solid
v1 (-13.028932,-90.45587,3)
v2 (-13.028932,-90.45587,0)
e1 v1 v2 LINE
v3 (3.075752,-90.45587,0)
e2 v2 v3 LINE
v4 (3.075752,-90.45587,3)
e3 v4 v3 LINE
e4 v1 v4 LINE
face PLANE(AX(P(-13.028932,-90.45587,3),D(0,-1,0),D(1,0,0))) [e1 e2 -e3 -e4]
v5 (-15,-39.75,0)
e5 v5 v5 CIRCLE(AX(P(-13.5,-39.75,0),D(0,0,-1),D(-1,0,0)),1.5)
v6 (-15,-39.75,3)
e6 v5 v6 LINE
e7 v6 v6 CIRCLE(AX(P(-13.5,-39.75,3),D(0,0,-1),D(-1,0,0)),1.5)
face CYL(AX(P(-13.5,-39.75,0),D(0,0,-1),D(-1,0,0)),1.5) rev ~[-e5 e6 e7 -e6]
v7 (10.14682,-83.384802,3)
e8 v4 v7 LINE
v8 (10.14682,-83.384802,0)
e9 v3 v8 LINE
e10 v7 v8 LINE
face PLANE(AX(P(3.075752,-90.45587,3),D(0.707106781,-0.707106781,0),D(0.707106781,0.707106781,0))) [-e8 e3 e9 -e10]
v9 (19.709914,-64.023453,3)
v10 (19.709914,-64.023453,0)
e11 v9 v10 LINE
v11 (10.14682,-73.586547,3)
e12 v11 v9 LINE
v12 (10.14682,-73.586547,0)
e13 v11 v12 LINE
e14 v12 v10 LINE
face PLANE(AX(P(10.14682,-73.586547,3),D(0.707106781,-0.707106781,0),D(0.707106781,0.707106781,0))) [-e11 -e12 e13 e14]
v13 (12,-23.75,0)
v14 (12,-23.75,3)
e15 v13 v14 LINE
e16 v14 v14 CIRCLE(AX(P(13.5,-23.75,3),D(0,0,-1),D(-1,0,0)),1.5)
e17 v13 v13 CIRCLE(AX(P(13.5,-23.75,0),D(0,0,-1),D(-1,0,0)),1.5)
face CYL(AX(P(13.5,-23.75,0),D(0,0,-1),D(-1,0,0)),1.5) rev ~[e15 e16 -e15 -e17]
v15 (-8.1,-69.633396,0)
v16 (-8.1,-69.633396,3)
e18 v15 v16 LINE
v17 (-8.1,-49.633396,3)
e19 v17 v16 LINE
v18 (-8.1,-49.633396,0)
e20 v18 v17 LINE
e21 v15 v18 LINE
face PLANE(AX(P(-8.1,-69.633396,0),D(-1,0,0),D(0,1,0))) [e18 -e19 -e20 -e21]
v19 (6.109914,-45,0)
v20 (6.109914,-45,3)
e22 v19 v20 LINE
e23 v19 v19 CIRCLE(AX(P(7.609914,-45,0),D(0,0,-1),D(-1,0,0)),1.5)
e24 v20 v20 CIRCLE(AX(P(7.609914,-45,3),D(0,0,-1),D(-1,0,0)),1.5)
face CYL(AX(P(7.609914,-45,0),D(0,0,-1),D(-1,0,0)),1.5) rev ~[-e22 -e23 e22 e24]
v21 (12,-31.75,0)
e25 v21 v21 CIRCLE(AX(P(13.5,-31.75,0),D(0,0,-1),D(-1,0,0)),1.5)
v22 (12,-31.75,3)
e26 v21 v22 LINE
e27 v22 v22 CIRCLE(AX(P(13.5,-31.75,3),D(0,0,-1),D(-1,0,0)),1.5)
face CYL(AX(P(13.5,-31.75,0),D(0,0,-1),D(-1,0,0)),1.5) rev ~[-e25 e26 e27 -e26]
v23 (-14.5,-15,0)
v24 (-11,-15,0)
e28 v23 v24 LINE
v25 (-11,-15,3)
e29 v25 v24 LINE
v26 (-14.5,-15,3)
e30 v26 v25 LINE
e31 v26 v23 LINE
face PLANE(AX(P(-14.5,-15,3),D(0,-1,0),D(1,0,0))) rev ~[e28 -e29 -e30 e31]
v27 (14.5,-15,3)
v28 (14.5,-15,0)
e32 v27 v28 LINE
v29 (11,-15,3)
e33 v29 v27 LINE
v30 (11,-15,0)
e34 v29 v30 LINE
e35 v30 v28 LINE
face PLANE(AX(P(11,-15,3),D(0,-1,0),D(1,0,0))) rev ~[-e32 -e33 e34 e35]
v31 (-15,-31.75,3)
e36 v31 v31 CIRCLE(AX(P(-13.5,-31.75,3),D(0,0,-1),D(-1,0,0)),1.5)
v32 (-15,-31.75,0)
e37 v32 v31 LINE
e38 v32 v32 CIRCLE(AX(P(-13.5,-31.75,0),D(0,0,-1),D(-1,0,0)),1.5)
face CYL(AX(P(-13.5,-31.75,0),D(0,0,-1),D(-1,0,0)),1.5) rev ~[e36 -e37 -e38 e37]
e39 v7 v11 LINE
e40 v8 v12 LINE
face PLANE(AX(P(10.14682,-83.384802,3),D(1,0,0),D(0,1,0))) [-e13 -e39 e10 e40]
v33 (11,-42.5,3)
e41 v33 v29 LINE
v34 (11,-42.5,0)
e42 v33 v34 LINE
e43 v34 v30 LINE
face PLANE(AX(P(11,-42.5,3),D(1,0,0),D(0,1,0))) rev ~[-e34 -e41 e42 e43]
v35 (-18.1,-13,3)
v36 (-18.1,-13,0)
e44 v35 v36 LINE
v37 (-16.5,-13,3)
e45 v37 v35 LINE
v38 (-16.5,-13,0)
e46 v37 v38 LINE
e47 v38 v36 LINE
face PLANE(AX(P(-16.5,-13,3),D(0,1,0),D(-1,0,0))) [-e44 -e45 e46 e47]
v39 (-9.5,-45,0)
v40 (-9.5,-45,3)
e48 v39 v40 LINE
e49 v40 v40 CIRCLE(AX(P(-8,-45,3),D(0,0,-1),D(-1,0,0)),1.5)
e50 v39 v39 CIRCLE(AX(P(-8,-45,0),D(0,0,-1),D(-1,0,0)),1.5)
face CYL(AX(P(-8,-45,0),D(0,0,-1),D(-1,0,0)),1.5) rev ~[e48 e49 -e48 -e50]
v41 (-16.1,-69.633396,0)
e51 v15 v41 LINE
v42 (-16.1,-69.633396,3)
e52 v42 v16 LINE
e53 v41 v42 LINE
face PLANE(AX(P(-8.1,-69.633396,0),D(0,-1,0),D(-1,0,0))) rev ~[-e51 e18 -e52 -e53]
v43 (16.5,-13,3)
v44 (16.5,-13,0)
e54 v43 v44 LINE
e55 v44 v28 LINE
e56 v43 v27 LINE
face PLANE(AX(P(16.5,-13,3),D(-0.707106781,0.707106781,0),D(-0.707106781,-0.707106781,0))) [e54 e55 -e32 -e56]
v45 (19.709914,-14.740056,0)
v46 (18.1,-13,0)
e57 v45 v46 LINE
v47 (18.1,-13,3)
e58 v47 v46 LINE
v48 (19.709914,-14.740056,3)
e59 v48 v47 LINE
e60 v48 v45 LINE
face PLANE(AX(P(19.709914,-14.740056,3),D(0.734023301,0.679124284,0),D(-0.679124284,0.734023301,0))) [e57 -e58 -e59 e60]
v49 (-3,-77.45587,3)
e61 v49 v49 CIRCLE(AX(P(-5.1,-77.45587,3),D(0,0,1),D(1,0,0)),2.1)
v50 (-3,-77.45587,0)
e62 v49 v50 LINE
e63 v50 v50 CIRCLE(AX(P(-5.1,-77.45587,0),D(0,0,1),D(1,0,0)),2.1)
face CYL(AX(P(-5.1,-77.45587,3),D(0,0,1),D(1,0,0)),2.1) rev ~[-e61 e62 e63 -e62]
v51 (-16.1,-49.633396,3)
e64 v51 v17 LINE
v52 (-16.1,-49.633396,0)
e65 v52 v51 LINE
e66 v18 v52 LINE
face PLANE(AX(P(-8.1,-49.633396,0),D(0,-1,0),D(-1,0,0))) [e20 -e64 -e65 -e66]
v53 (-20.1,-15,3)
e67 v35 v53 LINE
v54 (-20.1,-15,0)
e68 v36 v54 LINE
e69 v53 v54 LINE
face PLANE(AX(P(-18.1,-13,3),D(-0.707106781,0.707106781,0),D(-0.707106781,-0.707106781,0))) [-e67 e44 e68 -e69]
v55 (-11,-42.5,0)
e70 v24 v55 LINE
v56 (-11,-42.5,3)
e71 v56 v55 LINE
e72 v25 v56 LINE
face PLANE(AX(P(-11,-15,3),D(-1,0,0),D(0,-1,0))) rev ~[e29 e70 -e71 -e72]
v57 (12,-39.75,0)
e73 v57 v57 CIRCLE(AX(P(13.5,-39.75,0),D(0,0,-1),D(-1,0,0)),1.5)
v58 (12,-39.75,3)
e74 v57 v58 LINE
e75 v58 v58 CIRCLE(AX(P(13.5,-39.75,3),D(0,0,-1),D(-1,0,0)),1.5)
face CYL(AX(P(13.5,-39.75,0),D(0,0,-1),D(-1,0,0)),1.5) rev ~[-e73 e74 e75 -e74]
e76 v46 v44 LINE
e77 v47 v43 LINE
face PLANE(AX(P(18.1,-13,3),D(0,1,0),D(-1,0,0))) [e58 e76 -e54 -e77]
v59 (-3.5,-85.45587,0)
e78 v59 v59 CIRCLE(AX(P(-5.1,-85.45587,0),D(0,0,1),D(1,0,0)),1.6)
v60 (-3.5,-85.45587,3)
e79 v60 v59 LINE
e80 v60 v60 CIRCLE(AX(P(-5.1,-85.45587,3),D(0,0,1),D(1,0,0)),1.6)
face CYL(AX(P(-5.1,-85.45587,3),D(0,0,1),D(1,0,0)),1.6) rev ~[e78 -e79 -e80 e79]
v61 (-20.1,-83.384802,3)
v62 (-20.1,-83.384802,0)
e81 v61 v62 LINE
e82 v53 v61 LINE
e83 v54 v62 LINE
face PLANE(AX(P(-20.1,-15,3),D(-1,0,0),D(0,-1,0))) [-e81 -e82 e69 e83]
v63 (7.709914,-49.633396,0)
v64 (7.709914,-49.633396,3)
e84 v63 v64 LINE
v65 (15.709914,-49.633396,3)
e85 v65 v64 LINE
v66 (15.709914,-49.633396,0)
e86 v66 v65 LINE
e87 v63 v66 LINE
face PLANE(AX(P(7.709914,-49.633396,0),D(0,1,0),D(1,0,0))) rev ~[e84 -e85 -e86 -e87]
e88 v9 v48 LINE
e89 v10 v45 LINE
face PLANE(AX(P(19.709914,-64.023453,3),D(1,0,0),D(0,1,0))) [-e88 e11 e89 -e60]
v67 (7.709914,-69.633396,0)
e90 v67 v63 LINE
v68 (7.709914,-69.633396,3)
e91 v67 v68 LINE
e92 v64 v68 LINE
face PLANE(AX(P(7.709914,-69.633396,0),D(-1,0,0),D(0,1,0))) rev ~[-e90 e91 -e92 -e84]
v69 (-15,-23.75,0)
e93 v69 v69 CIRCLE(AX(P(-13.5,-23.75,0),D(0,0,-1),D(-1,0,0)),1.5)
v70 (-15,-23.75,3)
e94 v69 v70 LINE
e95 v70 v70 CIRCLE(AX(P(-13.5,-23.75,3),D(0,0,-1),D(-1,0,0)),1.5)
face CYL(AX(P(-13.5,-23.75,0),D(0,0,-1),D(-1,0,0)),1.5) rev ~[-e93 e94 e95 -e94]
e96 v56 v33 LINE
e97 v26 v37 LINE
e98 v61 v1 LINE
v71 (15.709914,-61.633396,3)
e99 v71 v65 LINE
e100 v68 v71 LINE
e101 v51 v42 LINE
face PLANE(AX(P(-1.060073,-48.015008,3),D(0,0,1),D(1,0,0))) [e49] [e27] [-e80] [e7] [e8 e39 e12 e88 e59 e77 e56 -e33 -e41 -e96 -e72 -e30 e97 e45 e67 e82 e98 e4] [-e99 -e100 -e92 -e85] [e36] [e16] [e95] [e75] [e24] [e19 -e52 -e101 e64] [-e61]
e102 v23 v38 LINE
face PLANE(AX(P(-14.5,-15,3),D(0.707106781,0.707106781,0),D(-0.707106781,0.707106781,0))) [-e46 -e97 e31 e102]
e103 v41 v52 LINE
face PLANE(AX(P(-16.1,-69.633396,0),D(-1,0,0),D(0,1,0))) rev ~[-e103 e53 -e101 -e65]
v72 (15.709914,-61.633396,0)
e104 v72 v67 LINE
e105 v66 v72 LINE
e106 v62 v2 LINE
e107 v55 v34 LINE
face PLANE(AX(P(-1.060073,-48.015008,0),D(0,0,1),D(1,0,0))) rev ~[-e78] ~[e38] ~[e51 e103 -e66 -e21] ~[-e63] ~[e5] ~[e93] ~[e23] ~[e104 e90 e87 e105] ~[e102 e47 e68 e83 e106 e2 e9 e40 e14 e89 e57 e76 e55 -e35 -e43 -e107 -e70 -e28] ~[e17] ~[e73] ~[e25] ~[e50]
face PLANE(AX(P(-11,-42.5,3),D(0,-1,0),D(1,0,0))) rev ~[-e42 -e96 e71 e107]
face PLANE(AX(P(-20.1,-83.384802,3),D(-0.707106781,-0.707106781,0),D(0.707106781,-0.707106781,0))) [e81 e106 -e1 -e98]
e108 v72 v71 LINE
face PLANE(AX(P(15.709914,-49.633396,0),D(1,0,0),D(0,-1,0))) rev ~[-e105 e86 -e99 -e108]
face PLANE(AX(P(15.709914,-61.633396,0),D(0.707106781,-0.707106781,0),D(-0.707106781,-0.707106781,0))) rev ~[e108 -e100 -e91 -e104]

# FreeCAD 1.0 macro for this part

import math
import FreeCAD as App
import Part
import Sketcher

V = App.Vector
Q = App.Units.Quantity


def add_polygon(sketch, points):
    """Adds a closed chain of lines whose ends are joined by coincident constraints."""
    first, n = sketch.GeometryCount, len(points)
    for a, b in zip(points, points[1:] + points[:1]):
        sketch.addGeometry(Part.LineSegment(App.Vector(*a, 0), App.Vector(*b, 0)), False)
    for i in range(n):
        sketch.addConstraint(Sketcher.Constraint("Coincident", first + i, 2, first + (i + 1) % n, 1))

doc = App.newDocument("Part")
body = doc.addObject("PartDesign::Body", "Body")

sketch1 = body.newObject("Sketcher::SketchObject", "Sketch")
sketch1.AttachmentSupport = (doc.getObject("XY_Plane"), [""])
sketch1.MapMode = "FlatFace"
sketch1.AttachmentOffset = App.Placement(V(0, 0, 3), App.Rotation())
sketch1.addGeometry([
    Part.LineSegment(V(-20.1, -15, 0), V(-20.1, -83.4, 0)),
    Part.LineSegment(V(-20.1, -83.4, 0), V(-13, -90.5, 0)),
    Part.LineSegment(V(-13, -90.5, 0), V(3.1, -90.5, 0)),
    Part.LineSegment(V(3.1, -90.5, 0), V(10.1, -83.4, 0)),
    Part.LineSegment(V(10.1, -83.4, 0), V(10.1, -73.6, 0)),
    Part.LineSegment(V(10.1, -73.6, 0), V(19.7, -64, 0)),
    Part.LineSegment(V(19.7, -64, 0), V(19.7, -14.7, 0)),
    Part.LineSegment(V(19.7, -14.7, 0), V(18.1, -13, 0)),
    Part.LineSegment(V(18.1, -13, 0), V(16.5, -13, 0)),
    Part.LineSegment(V(16.5, -13, 0), V(14.5, -15, 0)),
    Part.LineSegment(V(14.5, -15, 0), V(14.5, -41.5, 0)),
    Part.ArcOfCircle(Part.Circle(V(13.5, -41.5, 0), V(0, 0, 1), 1), math.radians(-90), math.radians(0)),
    Part.LineSegment(V(13.5, -42.5, 0), V(-13.5, -42.5, 0)),
    Part.ArcOfCircle(Part.Circle(V(-13.5, -41.5, 0), V(0, 0, 1), 1), math.radians(-180), math.radians(-90)),
    Part.LineSegment(V(-14.5, -41.5, 0), V(-14.5, -15, 0)),
    Part.LineSegment(V(-14.5, -15, 0), V(-16.5, -13, 0)),
    Part.LineSegment(V(-16.5, -13, 0), V(-18.1, -13, 0)),
    Part.LineSegment(V(-18.1, -13, 0), V(-20.1, -15, 0)),
    Part.Circle(V(-5.1, -85.5, 0), V(0, 0, 1), 1.6),
    Part.Circle(V(-5.1, -77.5, 0), V(0, 0, 1), 2.1),
], False)
sketch1.addConstraint([
    Sketcher.Constraint("Coincident", 0, 2, 1, 1),
    Sketcher.Constraint("Coincident", 1, 2, 2, 1),
    Sketcher.Constraint("Coincident", 2, 2, 3, 1),
    Sketcher.Constraint("Coincident", 3, 2, 4, 1),
    Sketcher.Constraint("Coincident", 4, 2, 5, 1),
    Sketcher.Constraint("Coincident", 5, 2, 6, 1),
    Sketcher.Constraint("Coincident", 6, 2, 7, 1),
    Sketcher.Constraint("Coincident", 7, 2, 8, 1),
    Sketcher.Constraint("Coincident", 8, 2, 9, 1),
    Sketcher.Constraint("Coincident", 9, 2, 10, 1),
    Sketcher.Constraint("Tangent", 10, 2, 11, 2),
    Sketcher.Constraint("Tangent", 11, 1, 12, 1),
    Sketcher.Constraint("Tangent", 12, 2, 13, 2),
    Sketcher.Constraint("Tangent", 13, 1, 14, 1),
    Sketcher.Constraint("Coincident", 14, 2, 15, 1),
    Sketcher.Constraint("Coincident", 15, 2, 16, 1),
    Sketcher.Constraint("Coincident", 16, 2, 17, 1),
    Sketcher.Constraint("Coincident", 17, 2, 0, 1),
    Sketcher.Constraint("Vertical", 0),
    Sketcher.Constraint("Horizontal", 2),
    Sketcher.Constraint("Vertical", 4),
    Sketcher.Constraint("Vertical", 6),
    Sketcher.Constraint("Horizontal", 8),
    Sketcher.Constraint("Vertical", 10),
    Sketcher.Constraint("Horizontal", 12),
    Sketcher.Constraint("Vertical", 14),
    Sketcher.Constraint("Horizontal", 16),
    Sketcher.Constraint("Equal", 11, 13),
    Sketcher.Constraint("Symmetric", 9, 2, 14, 2, -2),
    Sketcher.Constraint("Symmetric", 8, 2, 15, 2, -2),
    Sketcher.Constraint("Perpendicular", 1, 3),
    Sketcher.Constraint("Parallel", 3, 5),
    Sketcher.Constraint("Parallel", 5, 9),
    Sketcher.Constraint("Perpendicular", 9, 15),
    Sketcher.Constraint("Perpendicular", 15, 17),
    Sketcher.Constraint("Horizontal", 0, 2, 3, 2),
    Sketcher.Constraint("Horizontal", 14, 2, 17, 2),
    Sketcher.Constraint("Vertical", 18, 3, 19, 3),
    Sketcher.Constraint("Equal", 8, 16),
    Sketcher.Constraint("Radius", 11, Q("1 mm")),
    Sketcher.Constraint("Diameter", 18, Q("3.2 mm")),
    Sketcher.Constraint("Diameter", 19, Q("4.2 mm")),
    Sketcher.Constraint("DistanceX", 12, 2, 12, 1, Q("27 mm")),
    Sketcher.Constraint("Distance", 1, Q("10 mm")),
    Sketcher.Constraint("DistanceX", 8, 2, 8, 1, Q("1.6 mm")),
    Sketcher.Constraint("DistanceY", 10, 2, 10, 1, Q("26.5 mm")),
    Sketcher.Constraint("DistanceY", 7, 2, -1, 1, Q("13 mm")),
    Sketcher.Constraint("DistanceY", 9, 2, -1, 1, Q("15 mm")),
    Sketcher.Constraint("DistanceY", 18, 3, 19, 3, Q("8 mm")),
    Sketcher.Constraint("DistanceX", 0, 2, 18, 3, Q("15 mm")),
    Sketcher.Constraint("DistanceY", 1, 2, 18, 3, Q("5 mm")),
    Sketcher.Constraint("DistanceY", 0, 2, 0, 1, Q("68.384802 mm")),
    Sketcher.Constraint("DistanceX", 2, 1, 2, 2, Q("16.104684 mm")),
    Sketcher.Constraint("DistanceY", 4, 1, 4, 2, Q("9.798255 mm")),
    Sketcher.Constraint("DistanceY", 6, 1, 6, 2, Q("49.283397 mm")),
    Sketcher.Constraint("DistanceY", 3, 2, 5, 2, Q("19.361349 mm")),
])
pad1 = body.newObject("PartDesign::Pad", "Pad")
pad1.Profile = sketch1
pad1.Length = 3
pad1.Reversed = True

sketch2 = body.newObject("Sketcher::SketchObject", "Sketch001")
sketch2.AttachmentSupport = (doc.getObject("XY_Plane"), [""])
sketch2.MapMode = "FlatFace"
sketch2.AttachmentOffset = App.Placement(V(0, 0, 3), App.Rotation())
add_polygon(sketch2, [(-14.5, -15), (-16.5, -13), (-16.5, -43.1), (16.5, -43.1), (16.5, -13), (14.5, -15), (11, -15), (11, -42.5), (-11, -42.5), (-11, -15)])
sketch2.addConstraint([
    Sketcher.Constraint("Vertical", 1),
    Sketcher.Constraint("Horizontal", 2),
    Sketcher.Constraint("Vertical", 3),
    Sketcher.Constraint("Horizontal", 5),
    Sketcher.Constraint("Vertical", 6),
    Sketcher.Constraint("Horizontal", 7),
    Sketcher.Constraint("Vertical", 8),
    Sketcher.Constraint("Horizontal", 9),
    Sketcher.Constraint("Symmetric", 0, 2, 3, 2, -2),
    Sketcher.Constraint("Symmetric", 5, 2, 8, 2, -2),
    Sketcher.Constraint("Perpendicular", 0, 4),
    Sketcher.Constraint("Equal", 5, 9),
    Sketcher.Constraint("DistanceX", 2, 1, 2, 2, Q("33 mm")),
    Sketcher.Constraint("DistanceX", 7, 2, 7, 1, Q("22 mm")),
    Sketcher.Constraint("DistanceX", 5, 2, 5, 1, Q("3.5 mm")),
    Sketcher.Constraint("DistanceY", 6, 2, 6, 1, Q("27.5 mm")),
    Sketcher.Constraint("DistanceY", 0, 2, -1, 1, Q("13 mm")),
    Sketcher.Constraint("DistanceY", 1, 2, 1, 1, Q("30.147364 mm")),
])
pad2 = body.newObject("PartDesign::Pad", "Pad001")
pad2.Profile = sketch2
pad2.Length = 3
pad2.Reversed = True

sketch3 = body.newObject("Sketcher::SketchObject", "Sketch002")
sketch3.AttachmentSupport = (doc.getObject("XY_Plane"), [""])
sketch3.MapMode = "FlatFace"
sketch3.addGeometry([
    Part.Circle(V(13.5, -23.8, 0), V(0, 0, 1), 1.5),
    Part.Circle(V(13.5, -31.8, 0), V(0, 0, 1), 1.5),
    Part.Circle(V(13.5, -39.8, 0), V(0, 0, 1), 1.5),
    Part.Circle(V(7.6, -45, 0), V(0, 0, 1), 1.5),
    Part.Circle(V(-8, -45, 0), V(0, 0, 1), 1.5),
    Part.Circle(V(-13.5, -39.8, 0), V(0, 0, 1), 1.5),
    Part.Circle(V(-13.5, -31.8, 0), V(0, 0, 1), 1.5),
    Part.Circle(V(-13.5, -23.8, 0), V(0, 0, 1), 1.5),
], False)
sketch3.addConstraint([
    Sketcher.Constraint("Equal", 0, 1),
    Sketcher.Constraint("Equal", 1, 2),
    Sketcher.Constraint("Equal", 2, 3),
    Sketcher.Constraint("Equal", 3, 4),
    Sketcher.Constraint("Equal", 4, 5),
    Sketcher.Constraint("Equal", 5, 6),
    Sketcher.Constraint("Equal", 6, 7),
    Sketcher.Constraint("Symmetric", 2, 3, 5, 3, -2),
    Sketcher.Constraint("Symmetric", 1, 3, 6, 3, -2),
    Sketcher.Constraint("Symmetric", 0, 3, 7, 3, -2),
    Sketcher.Constraint("Horizontal", 3, 3, 4, 3),
    Sketcher.Constraint("Vertical", 0, 3, 1, 3),
    Sketcher.Constraint("Vertical", 1, 3, 2, 3),
    Sketcher.Constraint("Diameter", 0, Q("3 mm")),
    Sketcher.Constraint("DistanceY", 3, 3, -1, 1, Q("45 mm")),
    Sketcher.Constraint("DistanceX", 4, 3, -1, 1, Q("8 mm")),
    Sketcher.Constraint("DistanceY", 1, 3, 0, 3, Q("8 mm")),
    Sketcher.Constraint("DistanceY", 2, 3, 1, 3, Q("8 mm")),
    Sketcher.Constraint("DistanceX", 5, 3, 2, 3, Q("27 mm")),
    Sketcher.Constraint("DistanceY", 0, 3, -1, 1, Q("23.75 mm")),
    Sketcher.Constraint("DistanceX", -1, 1, 3, 3, Q("7.609914 mm")),
])
pocket1 = body.newObject("PartDesign::Pocket", "Pocket")
pocket1.Profile = sketch3
pocket1.Length = 4
pocket1.Reversed = True

sketch4 = body.newObject("Sketcher::SketchObject", "Sketch003")
sketch4.AttachmentSupport = (doc.getObject("XY_Plane"), [""])
sketch4.MapMode = "FlatFace"
add_polygon(sketch4, [(-8, -50), (-8, -70), (-16, -70), (-16, -50)])
add_polygon(sketch4, [(16, -50), (16, -62), (8, -70), (8, -50)])
sketch4.addConstraint([
    Sketcher.Constraint("Vertical", 0),
    Sketcher.Constraint("Horizontal", 1),
    Sketcher.Constraint("Vertical", 2),
    Sketcher.Constraint("Horizontal", 3),
    Sketcher.Constraint("Vertical", 4),
    Sketcher.Constraint("Vertical", 6),
    Sketcher.Constraint("Horizontal", 7),
    Sketcher.Constraint("Horizontal", 1, 2, 5, 2),
    Sketcher.Constraint("Horizontal", 3, 2, 6, 2),
    Sketcher.Constraint("Equal", 3, 7),
    Sketcher.Constraint("DistanceX", 1, 2, 1, 1, Q("8 mm")),
    Sketcher.Constraint("DistanceY", 0, 2, 0, 1, Q("20 mm")),
    Sketcher.Constraint("DistanceY", 4, 2, 4, 1, Q("12 mm")),
    Sketcher.Constraint("DistanceX", 0, 2, -1, 1, Q("8.1 mm")),
    Sketcher.Constraint("DistanceY", 0, 2, -1, 1, Q("69.633396 mm")),
    Sketcher.Constraint("DistanceX", -1, 1, 4, 2, Q("15.709914 mm")),
])
pocket2 = body.newObject("PartDesign::Pocket", "Pocket001")
pocket2.Profile = sketch4
pocket2.Length = 10
pocket2.Reversed = True

doc.recompute()
